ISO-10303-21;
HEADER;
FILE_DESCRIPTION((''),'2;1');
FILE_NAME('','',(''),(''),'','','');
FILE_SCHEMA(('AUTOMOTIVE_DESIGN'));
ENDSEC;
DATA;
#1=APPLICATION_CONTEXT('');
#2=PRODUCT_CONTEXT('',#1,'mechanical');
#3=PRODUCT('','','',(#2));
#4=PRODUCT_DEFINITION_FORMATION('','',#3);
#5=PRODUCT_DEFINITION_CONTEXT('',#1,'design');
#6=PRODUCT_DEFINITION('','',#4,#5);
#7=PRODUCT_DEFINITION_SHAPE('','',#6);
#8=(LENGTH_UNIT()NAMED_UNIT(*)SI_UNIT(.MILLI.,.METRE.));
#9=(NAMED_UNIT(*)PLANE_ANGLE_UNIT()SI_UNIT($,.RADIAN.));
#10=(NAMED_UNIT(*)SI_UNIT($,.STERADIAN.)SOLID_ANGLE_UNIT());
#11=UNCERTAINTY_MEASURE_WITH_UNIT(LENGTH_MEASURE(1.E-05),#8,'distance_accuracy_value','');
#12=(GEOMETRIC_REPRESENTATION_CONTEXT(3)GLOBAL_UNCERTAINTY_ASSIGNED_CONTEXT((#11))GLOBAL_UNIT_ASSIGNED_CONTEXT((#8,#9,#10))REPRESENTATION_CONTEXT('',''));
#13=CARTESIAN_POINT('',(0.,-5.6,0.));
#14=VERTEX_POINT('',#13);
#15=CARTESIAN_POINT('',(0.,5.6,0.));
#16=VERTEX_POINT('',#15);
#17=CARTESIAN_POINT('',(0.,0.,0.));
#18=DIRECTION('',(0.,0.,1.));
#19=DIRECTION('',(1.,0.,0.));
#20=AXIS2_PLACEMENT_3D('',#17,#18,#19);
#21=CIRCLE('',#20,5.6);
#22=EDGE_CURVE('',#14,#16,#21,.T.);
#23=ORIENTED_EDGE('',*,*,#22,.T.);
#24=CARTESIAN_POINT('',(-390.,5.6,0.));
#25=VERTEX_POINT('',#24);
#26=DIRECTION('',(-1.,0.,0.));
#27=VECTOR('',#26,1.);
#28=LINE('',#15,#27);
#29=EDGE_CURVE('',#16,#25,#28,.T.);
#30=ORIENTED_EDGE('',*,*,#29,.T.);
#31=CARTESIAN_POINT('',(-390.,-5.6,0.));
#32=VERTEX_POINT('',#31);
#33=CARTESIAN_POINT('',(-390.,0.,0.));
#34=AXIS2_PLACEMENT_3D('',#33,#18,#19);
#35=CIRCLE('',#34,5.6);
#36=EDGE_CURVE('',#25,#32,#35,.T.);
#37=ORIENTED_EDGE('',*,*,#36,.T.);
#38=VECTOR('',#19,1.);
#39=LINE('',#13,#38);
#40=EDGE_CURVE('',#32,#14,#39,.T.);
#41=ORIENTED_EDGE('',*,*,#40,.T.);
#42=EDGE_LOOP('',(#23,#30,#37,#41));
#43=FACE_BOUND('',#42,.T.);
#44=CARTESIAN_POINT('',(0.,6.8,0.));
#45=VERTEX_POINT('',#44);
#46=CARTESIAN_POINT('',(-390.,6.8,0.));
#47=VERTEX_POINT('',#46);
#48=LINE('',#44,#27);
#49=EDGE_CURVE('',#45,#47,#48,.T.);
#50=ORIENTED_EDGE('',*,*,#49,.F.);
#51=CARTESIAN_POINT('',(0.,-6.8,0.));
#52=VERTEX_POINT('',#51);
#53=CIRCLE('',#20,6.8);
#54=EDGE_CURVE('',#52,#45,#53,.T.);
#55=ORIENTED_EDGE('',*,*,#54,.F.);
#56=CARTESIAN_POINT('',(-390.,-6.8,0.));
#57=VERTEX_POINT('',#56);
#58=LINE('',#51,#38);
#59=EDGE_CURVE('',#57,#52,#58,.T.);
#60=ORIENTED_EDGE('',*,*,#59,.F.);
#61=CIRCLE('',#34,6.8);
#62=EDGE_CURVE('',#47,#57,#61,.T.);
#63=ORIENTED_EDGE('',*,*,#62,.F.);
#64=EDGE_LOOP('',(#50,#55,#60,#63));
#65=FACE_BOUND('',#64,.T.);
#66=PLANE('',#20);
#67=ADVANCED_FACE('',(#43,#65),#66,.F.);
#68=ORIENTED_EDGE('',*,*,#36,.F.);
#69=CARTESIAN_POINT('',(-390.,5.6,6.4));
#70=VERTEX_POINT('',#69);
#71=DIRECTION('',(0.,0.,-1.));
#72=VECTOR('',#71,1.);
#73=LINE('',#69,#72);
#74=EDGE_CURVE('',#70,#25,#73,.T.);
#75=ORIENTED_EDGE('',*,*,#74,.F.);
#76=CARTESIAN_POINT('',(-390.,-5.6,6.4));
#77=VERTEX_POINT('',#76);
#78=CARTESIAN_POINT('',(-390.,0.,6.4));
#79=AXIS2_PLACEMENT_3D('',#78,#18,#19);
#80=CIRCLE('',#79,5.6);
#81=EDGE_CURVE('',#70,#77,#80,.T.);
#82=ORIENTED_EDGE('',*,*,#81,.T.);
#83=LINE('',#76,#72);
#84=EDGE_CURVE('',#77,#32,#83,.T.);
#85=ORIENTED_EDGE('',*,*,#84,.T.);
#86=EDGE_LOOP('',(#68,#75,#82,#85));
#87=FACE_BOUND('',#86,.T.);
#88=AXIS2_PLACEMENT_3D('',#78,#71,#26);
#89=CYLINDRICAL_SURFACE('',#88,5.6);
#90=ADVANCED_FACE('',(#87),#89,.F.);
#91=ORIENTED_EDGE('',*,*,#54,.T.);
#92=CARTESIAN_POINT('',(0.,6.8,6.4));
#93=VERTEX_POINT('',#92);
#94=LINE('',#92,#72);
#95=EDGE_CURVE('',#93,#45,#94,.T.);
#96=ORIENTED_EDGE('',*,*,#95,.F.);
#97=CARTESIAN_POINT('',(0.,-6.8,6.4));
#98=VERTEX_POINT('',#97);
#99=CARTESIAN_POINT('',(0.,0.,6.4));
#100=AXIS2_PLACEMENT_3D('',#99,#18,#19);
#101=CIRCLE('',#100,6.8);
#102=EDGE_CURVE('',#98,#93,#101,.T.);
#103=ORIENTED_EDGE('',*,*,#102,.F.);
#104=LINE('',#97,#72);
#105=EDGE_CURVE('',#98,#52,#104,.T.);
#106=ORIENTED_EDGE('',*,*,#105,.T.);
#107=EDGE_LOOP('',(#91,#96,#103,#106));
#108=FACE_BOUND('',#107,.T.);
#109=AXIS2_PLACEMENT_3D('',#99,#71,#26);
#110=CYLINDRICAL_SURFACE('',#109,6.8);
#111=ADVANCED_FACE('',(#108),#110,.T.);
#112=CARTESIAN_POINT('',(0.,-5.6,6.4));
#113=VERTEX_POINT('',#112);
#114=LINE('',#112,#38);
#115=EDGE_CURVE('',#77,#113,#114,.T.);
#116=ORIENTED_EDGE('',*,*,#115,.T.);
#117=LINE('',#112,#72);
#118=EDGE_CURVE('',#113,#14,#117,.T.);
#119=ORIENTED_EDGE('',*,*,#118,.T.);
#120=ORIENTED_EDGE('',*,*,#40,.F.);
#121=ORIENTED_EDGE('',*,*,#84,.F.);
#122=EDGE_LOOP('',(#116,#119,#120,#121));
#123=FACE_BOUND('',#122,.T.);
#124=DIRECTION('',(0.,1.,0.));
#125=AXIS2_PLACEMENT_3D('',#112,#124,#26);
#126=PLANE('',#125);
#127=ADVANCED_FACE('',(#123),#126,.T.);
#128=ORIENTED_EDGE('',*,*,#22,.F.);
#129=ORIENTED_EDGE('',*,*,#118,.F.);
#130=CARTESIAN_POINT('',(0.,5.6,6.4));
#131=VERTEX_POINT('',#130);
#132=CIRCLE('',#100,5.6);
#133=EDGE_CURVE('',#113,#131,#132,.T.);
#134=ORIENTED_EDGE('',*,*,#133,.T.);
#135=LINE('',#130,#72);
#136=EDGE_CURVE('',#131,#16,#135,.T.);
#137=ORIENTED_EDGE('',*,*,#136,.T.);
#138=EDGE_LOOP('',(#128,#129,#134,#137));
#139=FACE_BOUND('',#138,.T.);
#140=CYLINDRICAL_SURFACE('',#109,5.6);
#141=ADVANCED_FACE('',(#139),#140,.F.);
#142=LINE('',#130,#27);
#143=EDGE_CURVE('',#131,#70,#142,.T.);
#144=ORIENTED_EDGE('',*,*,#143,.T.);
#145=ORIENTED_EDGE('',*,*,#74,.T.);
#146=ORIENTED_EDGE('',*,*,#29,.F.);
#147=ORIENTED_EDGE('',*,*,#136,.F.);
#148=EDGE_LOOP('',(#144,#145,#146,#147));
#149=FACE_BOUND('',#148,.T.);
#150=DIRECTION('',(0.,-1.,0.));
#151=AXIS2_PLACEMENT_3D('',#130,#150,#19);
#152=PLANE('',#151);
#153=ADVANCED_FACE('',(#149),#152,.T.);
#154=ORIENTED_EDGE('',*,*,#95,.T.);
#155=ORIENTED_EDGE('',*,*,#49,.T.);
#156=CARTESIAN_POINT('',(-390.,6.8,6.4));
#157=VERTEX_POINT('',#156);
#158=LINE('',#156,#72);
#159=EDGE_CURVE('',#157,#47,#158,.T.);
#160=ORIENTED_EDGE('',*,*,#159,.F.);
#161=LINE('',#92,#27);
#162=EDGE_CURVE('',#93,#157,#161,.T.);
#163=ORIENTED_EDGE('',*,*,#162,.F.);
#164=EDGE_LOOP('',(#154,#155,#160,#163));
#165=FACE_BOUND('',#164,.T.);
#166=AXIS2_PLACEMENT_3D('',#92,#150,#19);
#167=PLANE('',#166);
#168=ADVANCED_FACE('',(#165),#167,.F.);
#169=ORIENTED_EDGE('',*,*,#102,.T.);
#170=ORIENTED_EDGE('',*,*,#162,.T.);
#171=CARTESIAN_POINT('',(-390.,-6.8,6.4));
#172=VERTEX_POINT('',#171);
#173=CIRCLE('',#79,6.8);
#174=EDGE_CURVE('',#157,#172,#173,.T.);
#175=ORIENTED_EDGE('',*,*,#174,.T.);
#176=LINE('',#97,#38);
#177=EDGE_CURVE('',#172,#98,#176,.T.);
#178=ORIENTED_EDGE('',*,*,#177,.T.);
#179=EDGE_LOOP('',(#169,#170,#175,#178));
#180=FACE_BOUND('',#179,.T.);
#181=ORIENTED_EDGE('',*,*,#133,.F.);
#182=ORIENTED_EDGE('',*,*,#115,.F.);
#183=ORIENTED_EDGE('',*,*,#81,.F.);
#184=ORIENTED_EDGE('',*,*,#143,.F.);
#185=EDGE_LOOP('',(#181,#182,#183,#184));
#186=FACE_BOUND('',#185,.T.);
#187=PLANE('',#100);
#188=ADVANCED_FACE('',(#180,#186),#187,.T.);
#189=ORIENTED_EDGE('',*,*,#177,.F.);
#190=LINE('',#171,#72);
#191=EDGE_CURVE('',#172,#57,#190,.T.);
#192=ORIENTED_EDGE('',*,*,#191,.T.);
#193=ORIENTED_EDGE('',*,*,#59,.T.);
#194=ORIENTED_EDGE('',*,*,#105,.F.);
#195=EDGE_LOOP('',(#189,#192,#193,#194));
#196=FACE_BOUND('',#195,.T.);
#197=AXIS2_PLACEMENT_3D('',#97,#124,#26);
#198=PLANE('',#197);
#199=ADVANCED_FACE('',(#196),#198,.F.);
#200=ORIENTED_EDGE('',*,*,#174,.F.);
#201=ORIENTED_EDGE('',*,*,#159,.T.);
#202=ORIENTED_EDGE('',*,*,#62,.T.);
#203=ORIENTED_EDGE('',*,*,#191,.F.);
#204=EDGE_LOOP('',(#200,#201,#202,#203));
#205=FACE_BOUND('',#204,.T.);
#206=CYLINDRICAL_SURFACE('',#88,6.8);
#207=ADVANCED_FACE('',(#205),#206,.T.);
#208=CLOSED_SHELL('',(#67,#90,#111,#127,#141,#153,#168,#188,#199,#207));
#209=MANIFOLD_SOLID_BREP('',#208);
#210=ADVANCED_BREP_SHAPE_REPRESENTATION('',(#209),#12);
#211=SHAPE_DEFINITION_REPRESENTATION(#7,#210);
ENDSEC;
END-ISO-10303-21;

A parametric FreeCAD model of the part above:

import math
import FreeCAD as App
import Part
import Sketcher
from FreeCAD import Vector
Q = App.Units.Quantity

doc = App.newDocument("Part")
body = doc.addObject("PartDesign::Body", "Body")

# Sketch on XY plane
sketch1 = body.newObject("Sketcher::SketchObject", "Sketch")
sketch1.AttachmentSupport = (doc.getObject("XY_Plane"), [""])
sketch1.MapMode = "FlatFace"
sketch1.addGeometry([
    Part.LineSegment(Vector(-390, -7, 0), Vector(0, -7, 0)),  # 0
    Part.ArcOfCircle(Part.Circle(Vector(0, 0, 0), Vector(0, 0, 1), 7), math.radians(-90), math.radians(90)),  # 1
    Part.LineSegment(Vector(0, 7, 0), Vector(-390, 7, 0)),  # 2
    Part.ArcOfCircle(Part.Circle(Vector(-390, 0, 0), Vector(0, 0, 1), 7), math.radians(90), math.radians(270)),  # 3
    Part.LineSegment(Vector(0, -6, 0), Vector(-390, -6, 0)),  # 4
    Part.ArcOfCircle(Part.Circle(Vector(-390, 0, 0), Vector(0, 0, 1), 6), math.radians(90), math.radians(270)),  # 5
    Part.LineSegment(Vector(-390, 6, 0), Vector(0, 6, 0)),  # 6
    Part.ArcOfCircle(Part.Circle(Vector(0, 0, 0), Vector(0, 0, 1), 6), math.radians(-90), math.radians(90)),  # 7
], False)
sketch1.addConstraint([
    Sketcher.Constraint("Tangent", 0, 2, 1, 1),
    Sketcher.Constraint("Tangent", 1, 2, 2, 1),
    Sketcher.Constraint("Tangent", 2, 2, 3, 1),
    Sketcher.Constraint("Tangent", 3, 2, 0, 1),
    Sketcher.Constraint("Tangent", 4, 2, 5, 2),
    Sketcher.Constraint("Tangent", 5, 1, 6, 1),
    Sketcher.Constraint("Tangent", 6, 2, 7, 2),
    Sketcher.Constraint("Tangent", 7, 1, 4, 1),
    Sketcher.Constraint("Horizontal", 0),
    Sketcher.Constraint("Horizontal", 2),
    Sketcher.Constraint("Horizontal", 4),
    Sketcher.Constraint("Horizontal", 6),
    Sketcher.Constraint("Coincident", 1, 3, -1, 1),
    Sketcher.Constraint("Coincident", 7, 3, -1, 1),
    Sketcher.Constraint("Vertical", 5, 3, 2, 2),
    Sketcher.Constraint("Radius", 1, Q("6.8 mm")),
    Sketcher.Constraint("Radius", 5, Q("5.6 mm")),
    Sketcher.Constraint("DistanceX", 0, 1, 0, 2, Q("390 mm")),
])
pad1 = body.newObject("PartDesign::Pad", "Pad")
pad1.Profile = sketch1
pad1.Length = 6.4

doc.recompute()
